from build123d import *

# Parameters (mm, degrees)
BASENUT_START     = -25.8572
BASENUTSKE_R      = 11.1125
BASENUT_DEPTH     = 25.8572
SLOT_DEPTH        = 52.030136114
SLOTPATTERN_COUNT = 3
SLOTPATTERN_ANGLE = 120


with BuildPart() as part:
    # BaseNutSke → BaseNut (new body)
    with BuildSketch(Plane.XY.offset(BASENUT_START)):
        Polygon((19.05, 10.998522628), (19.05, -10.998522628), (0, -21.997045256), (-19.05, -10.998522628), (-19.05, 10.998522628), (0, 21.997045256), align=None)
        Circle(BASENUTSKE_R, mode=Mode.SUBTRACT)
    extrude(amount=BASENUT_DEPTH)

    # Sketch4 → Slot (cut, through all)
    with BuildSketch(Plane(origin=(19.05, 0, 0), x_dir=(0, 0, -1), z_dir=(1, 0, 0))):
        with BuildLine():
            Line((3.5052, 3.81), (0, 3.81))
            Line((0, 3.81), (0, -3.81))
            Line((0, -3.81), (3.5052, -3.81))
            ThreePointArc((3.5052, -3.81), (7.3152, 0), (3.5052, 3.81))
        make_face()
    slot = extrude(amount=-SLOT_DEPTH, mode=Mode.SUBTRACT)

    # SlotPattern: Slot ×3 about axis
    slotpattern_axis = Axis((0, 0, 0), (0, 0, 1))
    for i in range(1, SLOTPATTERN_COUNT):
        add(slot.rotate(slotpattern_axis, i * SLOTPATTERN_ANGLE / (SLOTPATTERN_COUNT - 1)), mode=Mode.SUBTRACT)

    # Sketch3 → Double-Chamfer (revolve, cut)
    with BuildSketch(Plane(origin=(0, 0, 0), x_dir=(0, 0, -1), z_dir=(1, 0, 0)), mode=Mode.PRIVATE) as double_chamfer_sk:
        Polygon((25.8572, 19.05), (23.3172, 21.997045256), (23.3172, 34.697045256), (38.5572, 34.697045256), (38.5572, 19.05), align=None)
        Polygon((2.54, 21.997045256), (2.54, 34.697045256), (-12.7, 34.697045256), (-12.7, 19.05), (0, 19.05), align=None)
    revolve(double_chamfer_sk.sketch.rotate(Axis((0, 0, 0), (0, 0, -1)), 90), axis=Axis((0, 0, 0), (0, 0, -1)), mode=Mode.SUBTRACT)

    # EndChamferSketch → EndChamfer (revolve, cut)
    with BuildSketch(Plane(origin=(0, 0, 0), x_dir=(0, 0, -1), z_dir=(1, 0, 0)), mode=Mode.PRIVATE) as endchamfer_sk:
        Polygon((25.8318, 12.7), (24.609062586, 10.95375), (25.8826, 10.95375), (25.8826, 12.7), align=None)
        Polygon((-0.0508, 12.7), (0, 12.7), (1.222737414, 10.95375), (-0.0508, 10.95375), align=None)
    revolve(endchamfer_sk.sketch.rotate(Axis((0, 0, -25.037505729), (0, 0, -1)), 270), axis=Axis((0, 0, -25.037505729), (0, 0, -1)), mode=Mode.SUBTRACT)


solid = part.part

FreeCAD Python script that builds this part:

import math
import FreeCAD as App
import Part
import Sketcher
Q = App.Units.Quantity


def add_polygon(sketch, points):
    """Adds a closed chain of lines whose ends are joined by coincident constraints."""
    first, n = sketch.GeometryCount, len(points)
    for a, b in zip(points, points[1:] + points[:1]):
        sketch.addGeometry(Part.LineSegment(App.Vector(*a, 0), App.Vector(*b, 0)), False)
    for i in range(n):
        sketch.addConstraint(Sketcher.Constraint("Coincident", first + i, 2, first + (i + 1) % n, 1))

doc = App.newDocument("Part")
body = doc.addObject("PartDesign::Body", "Body")

# Sketch on XY plane
sketch1 = doc.addObject("Sketcher::SketchObject", "Sketch")
body.addObject(sketch1)
sketch1.AttachmentSupport = (doc.XY_Plane, [""])
sketch1.MapMode = "FlatFace"
sketch1.AttachmentOffset = App.Placement(App.Vector(0, 0, -1.018 * 25.4), App.Rotation())
add_polygon(sketch1, [(19, -11), (19, 11), (0, 22), (-19, 11), (-19, -11), (0, -22)])  # lines 0-5
sketch1.addGeometry(Part.Circle(App.Vector(0, 0, 0), App.Vector(0, 0, 1), 11), False)  # 6
sketch1.addConstraint(Sketcher.Constraint("Vertical", 0))
sketch1.addConstraint(Sketcher.Constraint("Vertical", 3))
sketch1.addConstraint(Sketcher.Constraint("Coincident", 6, 3, -1, 1))
sketch1.addConstraint(Sketcher.Constraint("Symmetric", 0, 2, 3, 2, -1, 1))
sketch1.addConstraint(Sketcher.Constraint("Symmetric", 1, 2, 4, 2, -1, 1))
sketch1.addConstraint(Sketcher.Constraint("PointOnObject", 1, 2, -2))
sketch1.addConstraint(Sketcher.Constraint("Parallel", 2, 5))
sketch1.addConstraint(Sketcher.Constraint("Horizontal", 0, 2, 2, 2))
sketch1.addConstraint(Sketcher.Constraint("Diameter", 6, Q("0.875 in")))
sketch1.addConstraint(Sketcher.Constraint("Angle", 1, Q("150 deg")))
sketch1.addConstraint(Sketcher.Constraint("DistanceX", 2, 2, 0, 2, Q("1.5 in")))
sketch1.addConstraint(Sketcher.Constraint("DistanceY", 0, 1, 0, 2, Q("21.997045 mm")))
pad1 = doc.addObject("PartDesign::Pad", "Pad")
body.addObject(pad1)
pad1.Profile = sketch1
pad1.Length = Q("1.018 in")

# Sketch on YZ plane
sketch2 = doc.addObject("Sketcher::SketchObject", "Sketch001")
body.addObject(sketch2)
sketch2.AttachmentSupport = (doc.YZ_Plane, [""])
sketch2.MapMode = "FlatFace"
sketch2.AttachmentOffset = App.Placement(App.Vector(0, 0, 0.75 * 25.4), App.Rotation())
sketch2.addGeometry(Part.LineSegment(App.Vector(3.8, -3.5, 0), App.Vector(3.8, 0, 0)), False)
sketch2.addGeometry(Part.LineSegment(App.Vector(3.8, 0, 0), App.Vector(-3.8, 0, 0)), False)
sketch2.addGeometry(Part.LineSegment(App.Vector(-3.8, 0, 0), App.Vector(-3.8, -3.5, 0)), False)
sketch2.addGeometry(Part.ArcOfCircle(Part.Circle(App.Vector(0, -3.5, 0), App.Vector(0, 0, 1), 3.8), math.radians(180), math.radians(360)), False)
sketch2.addConstraint(Sketcher.Constraint("Coincident", 0, 2, 1, 1))
sketch2.addConstraint(Sketcher.Constraint("Coincident", 1, 2, 2, 1))
sketch2.addConstraint(Sketcher.Constraint("Tangent", 2, 2, 3, 1))
sketch2.addConstraint(Sketcher.Constraint("Tangent", 3, 2, 0, 1))
sketch2.addConstraint(Sketcher.Constraint("Vertical", 0))
sketch2.addConstraint(Sketcher.Constraint("Horizontal", 1))
sketch2.addConstraint(Sketcher.Constraint("Vertical", 2))
sketch2.addConstraint(Sketcher.Constraint("Symmetric", 0, 2, 1, 2, -1, 1))
sketch2.addConstraint(Sketcher.Constraint("Radius", 3, Q("0.15 in")))
sketch2.addConstraint(Sketcher.Constraint("DistanceY", 0, 1, 0, 2, Q("0.138 in")))
pocket1 = doc.addObject("PartDesign::Pocket", "Pocket")
body.addObject(pocket1)
pocket1.Profile = sketch2
pocket1.Type = "ThroughAll"
doc.recompute()

polarpattern = doc.addObject("PartDesign::PolarPattern", "PolarPattern")
body.addObject(polarpattern)
polarpattern.Originals = [pocket1]
polarpattern.Axis = (doc.Z_Axis, [""])
polarpattern.Angle = 120
polarpattern.Occurrences = 3
body.Tip = polarpattern

# Sketch on YZ plane
sketch3 = doc.addObject("Sketcher::SketchObject", "Sketch002")
body.addObject(sketch3)
sketch3.AttachmentSupport = (doc.YZ_Plane, [""])
sketch3.MapMode = "FlatFace"
add_polygon(sketch3, [(22, -23.3), (19.1, -25.9), (19.1, -38.6), (34.7, -38.6), (34.7, -23.3)])  # lines 0-4
add_polygon(sketch3, [(22, -2.5), (34.7, -2.5), (34.7, 12.7), (19.1, 12.7), (19.1, 0)])  # lines 5-9
sketch3.addConstraint(Sketcher.Constraint("Vertical", 1))
sketch3.addConstraint(Sketcher.Constraint("Horizontal", 2))
sketch3.addConstraint(Sketcher.Constraint("Vertical", 3))
sketch3.addConstraint(Sketcher.Constraint("Horizontal", 4))
sketch3.addConstraint(Sketcher.Constraint("Horizontal", 5))
sketch3.addConstraint(Sketcher.Constraint("Vertical", 6))
sketch3.addConstraint(Sketcher.Constraint("Horizontal", 7))
sketch3.addConstraint(Sketcher.Constraint("Vertical", 8))
sketch3.addConstraint(Sketcher.Constraint("PointOnObject", 8, 2, -1))
sketch3.addConstraint(Sketcher.Constraint("Vertical", 3, 2, 5, 2))
sketch3.addConstraint(Sketcher.Constraint("Vertical", 1, 2, 7, 2))
sketch3.addConstraint(Sketcher.Constraint("Vertical", 4, 2, 9, 2))
sketch3.addConstraint(Sketcher.Constraint("Equal", 5, 1))
sketch3.addConstraint(Sketcher.Constraint("Equal", 3, 6))
sketch3.addConstraint(Sketcher.Constraint("Equal", 1, 8))
sketch3.addConstraint(Sketcher.Constraint("DistanceX", 4, 2, 4, 1, Q("0.5 in")))
sketch3.addConstraint(Sketcher.Constraint("DistanceY", 3, 1, 3, 2, Q("0.6 in")))
sketch3.addConstraint(Sketcher.Constraint("DistanceX", -1, 1, 0, 2, Q("0.75 in")))
sketch3.addConstraint(Sketcher.Constraint("DistanceY", 0, 2, -1, 1, Q("1.018 in")))
sketch3.addConstraint(Sketcher.Constraint("Distance", 0, Q("3.890588 mm")))
groove = doc.addObject("PartDesign::Groove", "Groove")
body.addObject(groove)
groove.Profile = sketch3
groove.ReferenceAxis = (sketch3, ["V_Axis"])
groove.Angle = 360

# Sketch on YZ plane
sketch4 = doc.addObject("Sketcher::SketchObject", "Sketch003")
body.addObject(sketch4)
sketch4.AttachmentSupport = (doc.YZ_Plane, [""])
sketch4.MapMode = "FlatFace"
add_polygon(sketch4, [(12.7, -25.83), (10.95, -24.61), (10.95, -25.88), (12.7, -25.88)])  # lines 0-3
add_polygon(sketch4, [(12.7, 0), (12.7, 0.05), (10.95, 0.05), (10.95, -1.22)])  # lines 4-7
sketch4.addConstraint(Sketcher.Constraint("Vertical", 1))
sketch4.addConstraint(Sketcher.Constraint("Horizontal", 2))
sketch4.addConstraint(Sketcher.Constraint("Vertical", 3))
sketch4.addConstraint(Sketcher.Constraint("Vertical", 4))
sketch4.addConstraint(Sketcher.Constraint("Horizontal", 5))
sketch4.addConstraint(Sketcher.Constraint("Vertical", 6))
sketch4.addConstraint(Sketcher.Constraint("PointOnObject", 7, 2, -1))
sketch4.addConstraint(Sketcher.Constraint("Vertical", 3, 2, 4, 2))
sketch4.addConstraint(Sketcher.Constraint("Vertical", 1, 2, 5, 2))
sketch4.addConstraint(Sketcher.Constraint("Equal", 3, 4))
sketch4.addConstraint(Sketcher.Constraint("Equal", 1, 6))
sketch4.addConstraint(Sketcher.Constraint("Angle", 0, Q("145 deg")))
sketch4.addConstraint(Sketcher.Constraint("DistanceX", -1, 1, 2, 2, Q("0.5 in")))
sketch4.addConstraint(Sketcher.Constraint("DistanceY", 3, 1, 3, 2, Q("0.002 in")))
sketch4.addConstraint(Sketcher.Constraint("DistanceY", 1, 2, -1, 1, Q("1.019 in")))
sketch4.addConstraint(Sketcher.Constraint("DistanceX", 2, 1, 2, 2, Q("1.74625 mm")))
groove2 = doc.addObject("PartDesign::Groove", "Groove001")
body.addObject(groove2)
groove2.Profile = sketch4
groove2.ReferenceAxis = (sketch4, ["V_Axis"])
groove2.Angle = 360

doc.recompute()
